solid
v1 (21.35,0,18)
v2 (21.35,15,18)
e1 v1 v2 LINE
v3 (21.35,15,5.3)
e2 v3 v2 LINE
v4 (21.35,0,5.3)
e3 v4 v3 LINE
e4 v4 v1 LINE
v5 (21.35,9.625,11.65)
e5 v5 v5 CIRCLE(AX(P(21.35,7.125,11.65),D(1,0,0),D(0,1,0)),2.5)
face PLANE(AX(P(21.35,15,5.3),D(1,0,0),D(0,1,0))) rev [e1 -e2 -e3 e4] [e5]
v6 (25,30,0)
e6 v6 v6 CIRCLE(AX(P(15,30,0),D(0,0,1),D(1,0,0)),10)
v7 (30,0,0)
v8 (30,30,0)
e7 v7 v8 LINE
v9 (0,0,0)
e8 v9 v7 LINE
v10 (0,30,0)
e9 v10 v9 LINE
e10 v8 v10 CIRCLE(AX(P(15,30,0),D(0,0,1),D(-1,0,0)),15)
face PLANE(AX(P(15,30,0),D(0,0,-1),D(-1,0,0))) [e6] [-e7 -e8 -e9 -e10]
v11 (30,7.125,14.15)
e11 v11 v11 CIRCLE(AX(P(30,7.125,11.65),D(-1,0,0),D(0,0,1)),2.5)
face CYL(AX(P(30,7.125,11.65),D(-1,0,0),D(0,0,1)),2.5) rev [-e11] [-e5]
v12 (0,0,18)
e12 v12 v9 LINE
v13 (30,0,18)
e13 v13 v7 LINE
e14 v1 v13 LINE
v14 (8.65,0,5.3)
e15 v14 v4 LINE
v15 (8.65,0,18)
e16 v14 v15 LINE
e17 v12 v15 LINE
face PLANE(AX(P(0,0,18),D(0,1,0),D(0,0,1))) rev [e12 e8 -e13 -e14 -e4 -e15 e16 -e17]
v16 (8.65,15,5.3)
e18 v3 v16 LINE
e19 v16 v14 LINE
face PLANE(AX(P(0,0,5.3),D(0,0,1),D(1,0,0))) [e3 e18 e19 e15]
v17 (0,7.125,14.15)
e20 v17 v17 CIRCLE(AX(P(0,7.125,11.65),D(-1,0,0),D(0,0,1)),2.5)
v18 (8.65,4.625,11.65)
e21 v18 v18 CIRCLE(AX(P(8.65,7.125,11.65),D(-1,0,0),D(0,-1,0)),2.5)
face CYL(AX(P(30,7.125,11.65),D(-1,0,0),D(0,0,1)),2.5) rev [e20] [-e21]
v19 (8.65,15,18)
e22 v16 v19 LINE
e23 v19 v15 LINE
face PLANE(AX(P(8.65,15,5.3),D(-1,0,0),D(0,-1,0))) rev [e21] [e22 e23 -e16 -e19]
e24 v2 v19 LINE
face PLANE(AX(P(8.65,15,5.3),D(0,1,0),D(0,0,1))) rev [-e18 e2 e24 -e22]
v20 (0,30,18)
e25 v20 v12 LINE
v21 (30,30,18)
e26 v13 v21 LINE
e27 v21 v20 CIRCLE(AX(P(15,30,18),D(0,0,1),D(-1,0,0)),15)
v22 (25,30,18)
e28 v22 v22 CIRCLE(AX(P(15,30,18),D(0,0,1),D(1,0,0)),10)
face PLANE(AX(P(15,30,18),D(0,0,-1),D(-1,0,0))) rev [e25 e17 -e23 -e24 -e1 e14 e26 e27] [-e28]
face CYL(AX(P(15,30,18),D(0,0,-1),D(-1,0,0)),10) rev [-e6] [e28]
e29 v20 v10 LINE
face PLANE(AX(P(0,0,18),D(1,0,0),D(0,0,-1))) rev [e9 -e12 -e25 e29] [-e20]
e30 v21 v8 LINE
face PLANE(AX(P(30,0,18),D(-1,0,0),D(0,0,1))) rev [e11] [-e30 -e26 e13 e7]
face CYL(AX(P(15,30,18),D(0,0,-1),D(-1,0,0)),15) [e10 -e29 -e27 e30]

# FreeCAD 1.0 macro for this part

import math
import FreeCAD as App
import Part
import Sketcher
Q = App.Units.Quantity


def add_polygon(sketch, points):
    """Adds a closed chain of lines whose ends are joined by coincident constraints."""
    first, n = sketch.GeometryCount, len(points)
    for a, b in zip(points, points[1:] + points[:1]):
        sketch.addGeometry(Part.LineSegment(App.Vector(*a, 0), App.Vector(*b, 0)), False)
    for i in range(n):
        sketch.addConstraint(Sketcher.Constraint("Coincident", first + i, 2, first + (i + 1) % n, 1))

doc = App.newDocument("Part")
body = doc.addObject("PartDesign::Body", "Body")

sketch1 = body.newObject("Sketcher::SketchObject", "Sketch")
sketch1.AttachmentSupport = (doc.getObject("XY_Plane"), [""])
sketch1.MapMode = "FlatFace"
sketch1.addGeometry([
    Part.LineSegment(App.Vector(0, 0, 0), App.Vector(30, 0, 0)),
    Part.LineSegment(App.Vector(30, 0, 0), App.Vector(30, 30, 0)),
    Part.ArcOfCircle(Part.Circle(App.Vector(15, 30, 0), App.Vector(0, 0, 1), 15), math.radians(0), math.radians(180)),
    Part.LineSegment(App.Vector(0, 30, 0), App.Vector(0, 0, 0)),
    Part.Circle(App.Vector(15, 30, 0), App.Vector(0, 0, 1), 10),
], False)
sketch1.addConstraint([
    Sketcher.Constraint("Coincident", 0, 2, 1, 1),
    Sketcher.Constraint("Tangent", 1, 2, 2, 1),
    Sketcher.Constraint("Tangent", 2, 2, 3, 1),
    Sketcher.Constraint("Coincident", 3, 2, 0, 1),
    Sketcher.Constraint("Horizontal", 0),
    Sketcher.Constraint("Vertical", 1),
    Sketcher.Constraint("Vertical", 3),
    Sketcher.Constraint("Coincident", 3, 2, -1, 1),
    Sketcher.Constraint("Coincident", 4, 3, 2, 3),
    Sketcher.Constraint("Equal", 0, 1),
    Sketcher.Constraint("Diameter", 4, Q("20 mm")),
    Sketcher.Constraint("Radius", 2, Q("15 mm")),
])
pad1 = body.newObject("PartDesign::Pad", "Pad")
pad1.Profile = sketch1
pad1.Length = 18

sketch2 = body.newObject("Sketcher::SketchObject", "Sketch001")
sketch2.AttachmentSupport = (doc.getObject("XY_Plane"), [""])
sketch2.MapMode = "FlatFace"
sketch2.AttachmentOffset = App.Placement(App.Vector(0, 0, 18), App.Rotation())
add_polygon(sketch2, [(9, 15), (9, 0), (21, 0), (21, 15)])
sketch2.addConstraint([
    Sketcher.Constraint("Vertical", 0),
    Sketcher.Constraint("Horizontal", 1),
    Sketcher.Constraint("Vertical", 2),
    Sketcher.Constraint("Horizontal", 3),
    Sketcher.Constraint("PointOnObject", 0, 2, -1),
    Sketcher.Constraint("DistanceY", 0, 2, 0, 1, Q("15 mm")),
    Sketcher.Constraint("DistanceX", 1, 1, 1, 2, Q("12.7 mm")),
    Sketcher.Constraint("DistanceX", -1, 1, 0, 2, Q("8.65 mm")),
])
pocket1 = body.newObject("PartDesign::Pocket", "Pocket")
pocket1.Profile = sketch2
pocket1.Length = 12.7

sketch3 = body.newObject("Sketcher::SketchObject", "Sketch002")
sketch3.AttachmentSupport = (doc.getObject("YZ_Plane"), [""])
sketch3.MapMode = "FlatFace"
sketch3.addGeometry(Part.Circle(App.Vector(7.1, 11.7, 0), App.Vector(0, 0, 1), 2.5), False)
sketch3.addConstraint([
    Sketcher.Constraint("Diameter", 0, Q("5 mm")),
    Sketcher.Constraint("DistanceY", -1, 1, 0, 3, Q("11.65 mm")),
    Sketcher.Constraint("DistanceX", -1, 1, 0, 3, Q("7.125 mm")),
])
pocket2 = body.newObject("PartDesign::Pocket", "Pocket001")
pocket2.Profile = sketch3
pocket2.Type = "ThroughAll"
pocket2.Reversed = True

doc.recompute()
